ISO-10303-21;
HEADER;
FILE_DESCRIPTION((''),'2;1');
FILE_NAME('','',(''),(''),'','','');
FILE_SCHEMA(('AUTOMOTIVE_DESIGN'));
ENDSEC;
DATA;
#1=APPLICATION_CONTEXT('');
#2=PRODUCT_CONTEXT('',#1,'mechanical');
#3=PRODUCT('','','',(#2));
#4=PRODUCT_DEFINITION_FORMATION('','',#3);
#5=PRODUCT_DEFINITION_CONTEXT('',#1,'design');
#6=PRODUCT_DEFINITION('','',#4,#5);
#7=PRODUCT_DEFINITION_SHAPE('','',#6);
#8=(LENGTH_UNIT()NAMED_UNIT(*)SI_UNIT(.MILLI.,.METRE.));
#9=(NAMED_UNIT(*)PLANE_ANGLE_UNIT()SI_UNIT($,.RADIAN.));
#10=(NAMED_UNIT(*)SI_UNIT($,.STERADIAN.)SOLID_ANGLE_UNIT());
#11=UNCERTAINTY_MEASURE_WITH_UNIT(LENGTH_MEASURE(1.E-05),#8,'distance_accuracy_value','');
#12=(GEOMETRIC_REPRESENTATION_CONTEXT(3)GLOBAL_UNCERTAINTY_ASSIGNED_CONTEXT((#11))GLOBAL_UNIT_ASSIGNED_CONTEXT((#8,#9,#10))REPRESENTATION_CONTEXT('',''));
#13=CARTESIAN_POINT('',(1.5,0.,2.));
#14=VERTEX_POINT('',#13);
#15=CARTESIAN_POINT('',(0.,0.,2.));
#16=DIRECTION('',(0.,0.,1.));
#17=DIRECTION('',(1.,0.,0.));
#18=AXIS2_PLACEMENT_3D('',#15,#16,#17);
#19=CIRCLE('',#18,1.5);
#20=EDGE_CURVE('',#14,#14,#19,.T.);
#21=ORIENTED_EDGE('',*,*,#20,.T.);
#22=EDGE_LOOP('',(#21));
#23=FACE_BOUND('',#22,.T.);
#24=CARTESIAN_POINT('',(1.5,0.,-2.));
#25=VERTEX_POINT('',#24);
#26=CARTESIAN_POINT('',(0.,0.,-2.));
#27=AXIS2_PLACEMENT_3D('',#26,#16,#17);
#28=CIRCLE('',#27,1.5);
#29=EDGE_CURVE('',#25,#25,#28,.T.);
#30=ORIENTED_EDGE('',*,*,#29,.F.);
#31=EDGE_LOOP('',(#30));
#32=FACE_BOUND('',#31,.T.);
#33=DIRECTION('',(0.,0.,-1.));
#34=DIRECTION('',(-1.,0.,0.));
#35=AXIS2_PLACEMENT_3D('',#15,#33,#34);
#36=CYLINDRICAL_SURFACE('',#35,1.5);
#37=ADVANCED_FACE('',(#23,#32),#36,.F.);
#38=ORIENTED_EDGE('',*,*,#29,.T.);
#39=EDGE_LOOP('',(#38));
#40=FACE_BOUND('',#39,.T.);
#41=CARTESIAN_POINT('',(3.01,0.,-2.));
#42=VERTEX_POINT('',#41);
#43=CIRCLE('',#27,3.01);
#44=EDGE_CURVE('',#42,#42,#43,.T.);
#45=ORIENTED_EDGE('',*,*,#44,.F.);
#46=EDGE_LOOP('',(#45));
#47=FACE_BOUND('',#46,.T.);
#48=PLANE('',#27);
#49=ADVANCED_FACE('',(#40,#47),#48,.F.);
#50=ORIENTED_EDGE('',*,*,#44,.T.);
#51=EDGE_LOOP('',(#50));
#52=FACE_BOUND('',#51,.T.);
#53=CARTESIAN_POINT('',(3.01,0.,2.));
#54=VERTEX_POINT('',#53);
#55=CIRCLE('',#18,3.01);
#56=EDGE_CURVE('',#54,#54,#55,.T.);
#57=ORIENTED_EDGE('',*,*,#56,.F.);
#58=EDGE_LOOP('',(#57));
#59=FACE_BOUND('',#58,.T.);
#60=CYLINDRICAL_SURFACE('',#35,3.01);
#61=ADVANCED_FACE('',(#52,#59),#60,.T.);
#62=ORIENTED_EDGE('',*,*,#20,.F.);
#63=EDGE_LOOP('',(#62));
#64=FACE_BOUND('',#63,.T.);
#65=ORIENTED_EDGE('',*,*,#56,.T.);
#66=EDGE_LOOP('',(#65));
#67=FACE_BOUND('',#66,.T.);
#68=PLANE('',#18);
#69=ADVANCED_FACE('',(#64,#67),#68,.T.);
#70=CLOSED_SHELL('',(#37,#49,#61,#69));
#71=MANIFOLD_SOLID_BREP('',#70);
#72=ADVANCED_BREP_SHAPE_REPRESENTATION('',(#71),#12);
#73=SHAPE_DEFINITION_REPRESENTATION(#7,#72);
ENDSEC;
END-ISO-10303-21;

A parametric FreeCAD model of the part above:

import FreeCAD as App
import Part
import Sketcher
Q = App.Units.Quantity

doc = App.newDocument("Part")
body = doc.addObject("PartDesign::Body", "Body")

# Sketch on XY plane
sketch1 = body.newObject("Sketcher::SketchObject", "Sketch")
sketch1.AttachmentSupport = (doc.getObject("XY_Plane"), [""])
sketch1.MapMode = "FlatFace"
sketch1.addGeometry([
    Part.Circle(App.Vector(0, 0, 0), App.Vector(0, 0, 1), 3),
    Part.Circle(App.Vector(0, 0, 0), App.Vector(0, 0, 1), 1.5),
], False)
sketch1.addConstraint([
    Sketcher.Constraint("Coincident", 0, 3, -1, 1),
    Sketcher.Constraint("Coincident", 1, 3, -1, 1),
    Sketcher.Constraint("Diameter", 1, Q("3 mm")),
    Sketcher.Constraint("Diameter", 0, Q("6.02 mm")),
])
pad1 = body.newObject("PartDesign::Pad", "Pad")
pad1.Profile = sketch1
pad1.Length = 4
pad1.Midplane = True

doc.recompute()
